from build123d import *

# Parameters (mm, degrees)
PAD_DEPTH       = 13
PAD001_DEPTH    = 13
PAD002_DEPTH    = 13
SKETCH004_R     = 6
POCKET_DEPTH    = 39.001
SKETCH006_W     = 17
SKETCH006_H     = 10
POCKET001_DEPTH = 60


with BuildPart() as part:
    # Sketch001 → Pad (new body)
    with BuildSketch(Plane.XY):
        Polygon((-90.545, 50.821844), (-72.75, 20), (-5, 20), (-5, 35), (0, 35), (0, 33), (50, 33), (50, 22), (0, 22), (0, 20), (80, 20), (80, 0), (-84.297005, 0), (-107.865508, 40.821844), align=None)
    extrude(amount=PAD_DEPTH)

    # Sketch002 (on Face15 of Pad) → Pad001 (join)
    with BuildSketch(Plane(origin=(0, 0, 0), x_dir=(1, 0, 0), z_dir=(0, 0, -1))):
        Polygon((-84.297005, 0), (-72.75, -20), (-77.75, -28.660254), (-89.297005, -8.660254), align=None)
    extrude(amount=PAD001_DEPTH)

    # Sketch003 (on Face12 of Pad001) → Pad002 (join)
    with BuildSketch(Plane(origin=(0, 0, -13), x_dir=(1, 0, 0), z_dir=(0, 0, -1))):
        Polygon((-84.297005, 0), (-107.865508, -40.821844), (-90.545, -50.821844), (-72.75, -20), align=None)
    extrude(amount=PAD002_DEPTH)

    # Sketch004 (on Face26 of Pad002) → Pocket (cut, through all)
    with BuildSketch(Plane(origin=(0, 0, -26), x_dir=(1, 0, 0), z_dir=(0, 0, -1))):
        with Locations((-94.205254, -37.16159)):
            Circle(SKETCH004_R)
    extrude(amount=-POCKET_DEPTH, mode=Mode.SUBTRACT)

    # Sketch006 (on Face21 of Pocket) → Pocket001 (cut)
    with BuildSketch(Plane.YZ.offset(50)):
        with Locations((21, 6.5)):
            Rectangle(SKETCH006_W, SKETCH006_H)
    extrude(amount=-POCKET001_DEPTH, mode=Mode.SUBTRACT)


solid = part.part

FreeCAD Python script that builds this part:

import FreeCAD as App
import Part
import Sketcher
from FreeCAD import Vector
Q = App.Units.Quantity


def add_polygon(sketch, points):
    """Adds a closed chain of lines whose ends are joined by coincident constraints."""
    first, n = sketch.GeometryCount, len(points)
    for a, b in zip(points, points[1:] + points[:1]):
        sketch.addGeometry(Part.LineSegment(App.Vector(*a, 0), App.Vector(*b, 0)), False)
    for i in range(n):
        sketch.addConstraint(Sketcher.Constraint("Coincident", first + i, 2, first + (i + 1) % n, 1))

doc = App.newDocument("Part")
body = doc.addObject("PartDesign::Body", "Body")

# Sketch on XY plane
sketch1 = body.newObject("Sketcher::SketchObject", "Sketch")
sketch1.AttachmentSupport = (doc.getObject("XY_Plane"), [""])
sketch1.MapMode = "FlatFace"
add_polygon(sketch1, [(-72.8, 20), (-90.5, 50.8), (-107.9, 40.8), (-84.3, 0), (80, 0), (80, 20), (0, 20), (0, 22), (50, 22), (50, 33), (0, 33), (0, 35), (-5, 35), (-5, 20)])  # lines 0-13
sketch1.addConstraint([
    Sketcher.Constraint("Horizontal", 3),
    Sketcher.Constraint("Vertical", 4),
    Sketcher.Constraint("Horizontal", 5),
    Sketcher.Constraint("Vertical", 6),
    Sketcher.Constraint("Horizontal", 7),
    Sketcher.Constraint("Vertical", 8),
    Sketcher.Constraint("Horizontal", 9),
    Sketcher.Constraint("Vertical", 10),
    Sketcher.Constraint("Horizontal", 11),
    Sketcher.Constraint("Vertical", 12),
    Sketcher.Constraint("Horizontal", 13),
    Sketcher.Constraint("PointOnObject", 2, 2, -1),
    Sketcher.Constraint("PointOnObject", 5, 2, -2),
    Sketcher.Constraint("PointOnObject", 9, 2, -2),
    Sketcher.Constraint("Perpendicular", 0, 1),
    Sketcher.Constraint("Perpendicular", 1, 2),
    Sketcher.Constraint("Horizontal", 5, 2, 12, 2),
    Sketcher.Constraint("Equal", 6, 10),
    Sketcher.Constraint("DistanceX", 5, 2, 5, 1, 80.0),
    Sketcher.Constraint("DistanceX", 7, 1, 7, 2, 50.0),
    Sketcher.Constraint("DistanceX", 11, 2, 11, 1, 5.0),
    Sketcher.Constraint("DistanceY", 4, 1, 4, 2, 20.0),
    Sketcher.Constraint("DistanceY", 6, 1, 6, 2, 2.0),
    Sketcher.Constraint("DistanceY", 8, 1, 8, 2, 11.0),
    Sketcher.Constraint("Angle", 0, Q("120 deg")),
    Sketcher.Constraint("Distance", 1, 20.0),
    Sketcher.Constraint("DistanceX", 13, 2, 13, 1, 67.75),
    Sketcher.Constraint("Distance", 0, 35.59),
])
pad1 = body.newObject("PartDesign::Pad", "Pad")
pad1.Profile = sketch1
pad1.Length = 13

# Sketch on XY plane
sketch2 = body.newObject("Sketcher::SketchObject", "Sketch001")
sketch2.AttachmentSupport = (doc.getObject("XY_Plane"), [""])
sketch2.MapMode = "FlatFace"
add_polygon(sketch2, [(-73, 20), (-84, 0), (-89, 9), (-78, 29)])  # lines 0-3
sketch2.addConstraint([
    Sketcher.Constraint("PointOnObject", 0, 2, -1),
    Sketcher.Constraint("Parallel", 0, 2),
    Sketcher.Constraint("Parallel", 1, 3),
    Sketcher.Constraint("Angle", 0, Q("-119.999999 deg")),
    Sketcher.Constraint("Angle", 1, Q("120 deg")),
    Sketcher.Constraint("Distance", 1, 10.0),
    Sketcher.Constraint("DistanceY", -1, 1, 3, 2, 20.0),
    Sketcher.Constraint("DistanceX", 2, 2, -1, 1, 77.75),
])
pad2 = body.newObject("PartDesign::Pad", "Pad001")
pad2.Profile = sketch2
pad2.Length = 13
pad2.Reversed = True

# Sketch on XY plane
sketch3 = body.newObject("Sketcher::SketchObject", "Sketch002")
sketch3.AttachmentSupport = (doc.getObject("XY_Plane"), [""])
sketch3.MapMode = "FlatFace"
sketch3.AttachmentOffset = App.Placement(Vector(0, 0, -13), App.Rotation())
add_polygon(sketch3, [(-84, 0), (-108, 41), (-91, 51), (-73, 20)])  # lines 0-3
sketch3.addConstraint([
    Sketcher.Constraint("PointOnObject", 3, 2, -1),
    Sketcher.Constraint("Perpendicular", 0, 1),
    Sketcher.Constraint("Perpendicular", 1, 2),
    Sketcher.Constraint("Angle", 0, Q("120 deg")),
    Sketcher.Constraint("Angle", 3, Q("-119.999999 deg")),
    Sketcher.Constraint("Distance", 1, 20.0),
    Sketcher.Constraint("Distance", 2, 35.59),
    Sketcher.Constraint("DistanceX", 2, 2, -1, 1, 72.75),
])
pad3 = body.newObject("PartDesign::Pad", "Pad002")
pad3.Profile = sketch3
pad3.Length = 13
pad3.Reversed = True

# Sketch on XY plane
sketch4 = body.newObject("Sketcher::SketchObject", "Sketch003")
sketch4.AttachmentSupport = (doc.getObject("XY_Plane"), [""])
sketch4.MapMode = "FlatFace"
sketch4.AttachmentOffset = App.Placement(Vector(0, 0, -26), App.Rotation())
sketch4.addGeometry(Part.Circle(Vector(-94, 37, 0), Vector(0, 0, 1), 6), False)
sketch4.addConstraint([
    Sketcher.Constraint("Diameter", 0, 12.0),
    Sketcher.Constraint("DistanceY", -1, 1, 0, 3, 37.16159),
    Sketcher.Constraint("DistanceX", 0, 3, -1, 1, 94.205254),
])
pocket1 = body.newObject("PartDesign::Pocket", "Pocket")
pocket1.Profile = sketch4
pocket1.Type = "ThroughAll"
pocket1.Reversed = True

# Sketch on YZ plane
sketch5 = body.newObject("Sketcher::SketchObject", "Sketch004")
sketch5.AttachmentSupport = (doc.getObject("YZ_Plane"), [""])
sketch5.MapMode = "FlatFace"
sketch5.AttachmentOffset = App.Placement(Vector(0, 0, 50), App.Rotation())
add_polygon(sketch5, [(12, 12), (12, 2), (30, 2), (30, 12)])  # lines 0-3
sketch5.addConstraint([
    Sketcher.Constraint("Vertical", 0),
    Sketcher.Constraint("Horizontal", 1),
    Sketcher.Constraint("Vertical", 2),
    Sketcher.Constraint("Horizontal", 3),
    Sketcher.Constraint("DistanceX", 1, 1, 1, 2, 17.0),
    Sketcher.Constraint("DistanceY", 0, 2, 0, 1, 10.0),
    Sketcher.Constraint("DistanceX", -1, 1, 0, 2, 12.5),
    Sketcher.Constraint("DistanceY", -1, 1, 0, 2, 1.5),
])
pocket2 = body.newObject("PartDesign::Pocket", "Pocket001")
pocket2.Profile = sketch5
pocket2.Length = 60

doc.recompute()
